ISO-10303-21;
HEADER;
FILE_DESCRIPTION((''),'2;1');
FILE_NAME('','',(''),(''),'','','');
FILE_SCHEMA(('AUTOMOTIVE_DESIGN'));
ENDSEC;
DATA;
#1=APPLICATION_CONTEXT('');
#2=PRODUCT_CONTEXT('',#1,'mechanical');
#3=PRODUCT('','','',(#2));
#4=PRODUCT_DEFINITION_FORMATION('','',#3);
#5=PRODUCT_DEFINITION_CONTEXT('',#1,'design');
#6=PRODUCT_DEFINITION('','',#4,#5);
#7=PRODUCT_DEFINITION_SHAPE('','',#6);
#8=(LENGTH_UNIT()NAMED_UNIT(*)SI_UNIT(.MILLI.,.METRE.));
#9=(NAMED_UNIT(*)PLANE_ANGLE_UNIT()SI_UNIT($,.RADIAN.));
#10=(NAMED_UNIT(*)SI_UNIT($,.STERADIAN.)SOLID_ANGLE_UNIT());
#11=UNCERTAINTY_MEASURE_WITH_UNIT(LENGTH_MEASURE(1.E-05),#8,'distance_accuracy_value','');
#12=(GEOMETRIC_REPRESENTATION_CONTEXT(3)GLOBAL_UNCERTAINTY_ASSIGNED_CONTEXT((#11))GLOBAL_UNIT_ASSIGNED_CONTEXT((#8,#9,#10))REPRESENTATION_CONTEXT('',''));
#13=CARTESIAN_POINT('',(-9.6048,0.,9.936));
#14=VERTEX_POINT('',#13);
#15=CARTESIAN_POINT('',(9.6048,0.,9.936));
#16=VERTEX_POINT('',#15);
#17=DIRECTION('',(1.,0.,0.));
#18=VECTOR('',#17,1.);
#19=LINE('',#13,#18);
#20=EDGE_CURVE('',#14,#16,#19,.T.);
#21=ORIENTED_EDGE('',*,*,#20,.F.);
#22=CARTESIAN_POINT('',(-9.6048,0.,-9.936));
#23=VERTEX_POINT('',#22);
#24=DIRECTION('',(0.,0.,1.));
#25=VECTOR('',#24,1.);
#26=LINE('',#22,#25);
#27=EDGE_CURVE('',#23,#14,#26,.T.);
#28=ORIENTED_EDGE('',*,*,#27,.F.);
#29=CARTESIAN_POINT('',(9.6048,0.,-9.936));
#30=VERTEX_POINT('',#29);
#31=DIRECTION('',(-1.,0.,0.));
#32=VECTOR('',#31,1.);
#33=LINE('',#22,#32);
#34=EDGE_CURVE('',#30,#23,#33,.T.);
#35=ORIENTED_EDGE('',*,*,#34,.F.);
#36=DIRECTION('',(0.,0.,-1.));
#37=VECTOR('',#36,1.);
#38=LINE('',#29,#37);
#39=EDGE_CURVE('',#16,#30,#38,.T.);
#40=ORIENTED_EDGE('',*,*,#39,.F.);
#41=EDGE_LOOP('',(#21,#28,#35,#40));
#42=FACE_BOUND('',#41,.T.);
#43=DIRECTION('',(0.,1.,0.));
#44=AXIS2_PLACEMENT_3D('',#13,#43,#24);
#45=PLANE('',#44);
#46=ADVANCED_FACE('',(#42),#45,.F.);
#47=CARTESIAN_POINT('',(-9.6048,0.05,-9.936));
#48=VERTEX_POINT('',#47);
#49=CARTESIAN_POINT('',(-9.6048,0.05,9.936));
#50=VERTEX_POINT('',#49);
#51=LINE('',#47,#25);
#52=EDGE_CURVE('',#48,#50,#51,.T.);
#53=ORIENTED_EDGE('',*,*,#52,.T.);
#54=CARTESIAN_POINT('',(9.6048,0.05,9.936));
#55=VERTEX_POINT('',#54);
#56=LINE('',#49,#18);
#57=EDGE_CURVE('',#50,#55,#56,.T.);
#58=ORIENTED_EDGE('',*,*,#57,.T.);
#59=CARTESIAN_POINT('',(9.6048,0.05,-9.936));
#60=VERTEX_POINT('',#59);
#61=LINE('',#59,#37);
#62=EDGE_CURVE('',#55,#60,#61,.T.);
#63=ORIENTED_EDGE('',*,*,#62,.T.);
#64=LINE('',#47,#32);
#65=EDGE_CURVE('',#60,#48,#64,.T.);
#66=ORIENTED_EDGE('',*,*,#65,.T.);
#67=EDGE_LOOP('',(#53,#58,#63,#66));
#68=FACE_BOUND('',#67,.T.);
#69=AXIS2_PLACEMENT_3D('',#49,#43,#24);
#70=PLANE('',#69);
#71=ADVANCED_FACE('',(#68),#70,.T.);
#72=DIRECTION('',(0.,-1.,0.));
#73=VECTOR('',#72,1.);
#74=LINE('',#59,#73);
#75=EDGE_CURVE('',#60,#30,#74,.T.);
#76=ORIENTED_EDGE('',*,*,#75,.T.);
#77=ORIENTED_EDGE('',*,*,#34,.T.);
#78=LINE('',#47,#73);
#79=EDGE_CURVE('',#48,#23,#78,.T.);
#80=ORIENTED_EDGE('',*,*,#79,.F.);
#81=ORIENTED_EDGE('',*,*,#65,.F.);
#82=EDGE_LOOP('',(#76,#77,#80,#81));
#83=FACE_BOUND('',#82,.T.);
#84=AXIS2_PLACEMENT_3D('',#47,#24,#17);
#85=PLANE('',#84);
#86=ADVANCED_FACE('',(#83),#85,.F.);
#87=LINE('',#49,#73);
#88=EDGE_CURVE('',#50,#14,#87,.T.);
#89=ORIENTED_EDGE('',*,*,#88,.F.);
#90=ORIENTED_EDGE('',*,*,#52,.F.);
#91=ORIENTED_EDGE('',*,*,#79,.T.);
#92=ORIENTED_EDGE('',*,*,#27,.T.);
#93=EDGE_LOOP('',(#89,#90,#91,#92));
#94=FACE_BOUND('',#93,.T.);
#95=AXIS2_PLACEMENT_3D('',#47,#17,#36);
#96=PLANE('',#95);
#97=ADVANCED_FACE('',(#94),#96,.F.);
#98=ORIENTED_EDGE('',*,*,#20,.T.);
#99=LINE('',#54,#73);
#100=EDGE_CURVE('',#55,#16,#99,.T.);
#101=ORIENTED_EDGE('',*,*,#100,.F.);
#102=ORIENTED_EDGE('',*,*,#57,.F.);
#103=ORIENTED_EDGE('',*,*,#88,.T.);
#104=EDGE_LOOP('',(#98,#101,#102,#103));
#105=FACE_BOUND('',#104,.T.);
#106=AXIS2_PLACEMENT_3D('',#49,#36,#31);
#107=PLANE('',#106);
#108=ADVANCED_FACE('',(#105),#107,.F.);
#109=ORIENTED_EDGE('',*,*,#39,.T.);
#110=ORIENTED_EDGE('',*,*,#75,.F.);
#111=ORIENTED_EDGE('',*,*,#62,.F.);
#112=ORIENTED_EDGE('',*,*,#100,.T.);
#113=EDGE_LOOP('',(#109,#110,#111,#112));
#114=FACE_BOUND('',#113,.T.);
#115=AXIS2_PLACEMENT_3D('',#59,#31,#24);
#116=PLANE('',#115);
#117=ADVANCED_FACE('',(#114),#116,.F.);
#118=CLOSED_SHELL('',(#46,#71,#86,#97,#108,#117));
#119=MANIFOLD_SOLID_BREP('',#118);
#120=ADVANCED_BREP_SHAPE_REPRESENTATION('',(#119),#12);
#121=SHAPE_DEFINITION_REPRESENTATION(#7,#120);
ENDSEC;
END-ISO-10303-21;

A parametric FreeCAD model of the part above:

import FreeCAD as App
import Part
import Sketcher
from FreeCAD import Vector


def add_polygon(sketch, points):
    """Adds a closed chain of lines whose ends are joined by coincident constraints."""
    first, n = sketch.GeometryCount, len(points)
    for a, b in zip(points, points[1:] + points[:1]):
        sketch.addGeometry(Part.LineSegment(App.Vector(*a, 0), App.Vector(*b, 0)), False)
    for i in range(n):
        sketch.addConstraint(Sketcher.Constraint("Coincident", first + i, 2, first + (i + 1) % n, 1))

doc = App.newDocument("Part")
body = doc.addObject("PartDesign::Body", "Body")

sketch1 = doc.addObject("Sketcher::SketchObject", "Sketch")
body.addObject(sketch1)
sketch1.AttachmentSupport = (doc.XZ_Plane, [""])
sketch1.MapMode = "FlatFace"
add_polygon(sketch1, [(-10, -10), (-10, 10), (10, 10), (10, -10)])
sketch1.addConstraint([
    Sketcher.Constraint("Vertical", 0),
    Sketcher.Constraint("Horizontal", 1),
    Sketcher.Constraint("Vertical", 2),
    Sketcher.Constraint("Horizontal", 3),
    Sketcher.Constraint("Symmetric", 0, 2, 2, 2, -1, 1),
    Sketcher.Constraint("DistanceY", 0, 1, 0, 2, 19.872),
    Sketcher.Constraint("DistanceX", 1, 1, 1, 2, 19.2096),
])
pad1 = doc.addObject("PartDesign::Pad", "Pad")
body.addObject(pad1)
pad1.Profile = sketch1
pad1.Length = 0.05
pad1.Reversed = True

doc.recompute()
